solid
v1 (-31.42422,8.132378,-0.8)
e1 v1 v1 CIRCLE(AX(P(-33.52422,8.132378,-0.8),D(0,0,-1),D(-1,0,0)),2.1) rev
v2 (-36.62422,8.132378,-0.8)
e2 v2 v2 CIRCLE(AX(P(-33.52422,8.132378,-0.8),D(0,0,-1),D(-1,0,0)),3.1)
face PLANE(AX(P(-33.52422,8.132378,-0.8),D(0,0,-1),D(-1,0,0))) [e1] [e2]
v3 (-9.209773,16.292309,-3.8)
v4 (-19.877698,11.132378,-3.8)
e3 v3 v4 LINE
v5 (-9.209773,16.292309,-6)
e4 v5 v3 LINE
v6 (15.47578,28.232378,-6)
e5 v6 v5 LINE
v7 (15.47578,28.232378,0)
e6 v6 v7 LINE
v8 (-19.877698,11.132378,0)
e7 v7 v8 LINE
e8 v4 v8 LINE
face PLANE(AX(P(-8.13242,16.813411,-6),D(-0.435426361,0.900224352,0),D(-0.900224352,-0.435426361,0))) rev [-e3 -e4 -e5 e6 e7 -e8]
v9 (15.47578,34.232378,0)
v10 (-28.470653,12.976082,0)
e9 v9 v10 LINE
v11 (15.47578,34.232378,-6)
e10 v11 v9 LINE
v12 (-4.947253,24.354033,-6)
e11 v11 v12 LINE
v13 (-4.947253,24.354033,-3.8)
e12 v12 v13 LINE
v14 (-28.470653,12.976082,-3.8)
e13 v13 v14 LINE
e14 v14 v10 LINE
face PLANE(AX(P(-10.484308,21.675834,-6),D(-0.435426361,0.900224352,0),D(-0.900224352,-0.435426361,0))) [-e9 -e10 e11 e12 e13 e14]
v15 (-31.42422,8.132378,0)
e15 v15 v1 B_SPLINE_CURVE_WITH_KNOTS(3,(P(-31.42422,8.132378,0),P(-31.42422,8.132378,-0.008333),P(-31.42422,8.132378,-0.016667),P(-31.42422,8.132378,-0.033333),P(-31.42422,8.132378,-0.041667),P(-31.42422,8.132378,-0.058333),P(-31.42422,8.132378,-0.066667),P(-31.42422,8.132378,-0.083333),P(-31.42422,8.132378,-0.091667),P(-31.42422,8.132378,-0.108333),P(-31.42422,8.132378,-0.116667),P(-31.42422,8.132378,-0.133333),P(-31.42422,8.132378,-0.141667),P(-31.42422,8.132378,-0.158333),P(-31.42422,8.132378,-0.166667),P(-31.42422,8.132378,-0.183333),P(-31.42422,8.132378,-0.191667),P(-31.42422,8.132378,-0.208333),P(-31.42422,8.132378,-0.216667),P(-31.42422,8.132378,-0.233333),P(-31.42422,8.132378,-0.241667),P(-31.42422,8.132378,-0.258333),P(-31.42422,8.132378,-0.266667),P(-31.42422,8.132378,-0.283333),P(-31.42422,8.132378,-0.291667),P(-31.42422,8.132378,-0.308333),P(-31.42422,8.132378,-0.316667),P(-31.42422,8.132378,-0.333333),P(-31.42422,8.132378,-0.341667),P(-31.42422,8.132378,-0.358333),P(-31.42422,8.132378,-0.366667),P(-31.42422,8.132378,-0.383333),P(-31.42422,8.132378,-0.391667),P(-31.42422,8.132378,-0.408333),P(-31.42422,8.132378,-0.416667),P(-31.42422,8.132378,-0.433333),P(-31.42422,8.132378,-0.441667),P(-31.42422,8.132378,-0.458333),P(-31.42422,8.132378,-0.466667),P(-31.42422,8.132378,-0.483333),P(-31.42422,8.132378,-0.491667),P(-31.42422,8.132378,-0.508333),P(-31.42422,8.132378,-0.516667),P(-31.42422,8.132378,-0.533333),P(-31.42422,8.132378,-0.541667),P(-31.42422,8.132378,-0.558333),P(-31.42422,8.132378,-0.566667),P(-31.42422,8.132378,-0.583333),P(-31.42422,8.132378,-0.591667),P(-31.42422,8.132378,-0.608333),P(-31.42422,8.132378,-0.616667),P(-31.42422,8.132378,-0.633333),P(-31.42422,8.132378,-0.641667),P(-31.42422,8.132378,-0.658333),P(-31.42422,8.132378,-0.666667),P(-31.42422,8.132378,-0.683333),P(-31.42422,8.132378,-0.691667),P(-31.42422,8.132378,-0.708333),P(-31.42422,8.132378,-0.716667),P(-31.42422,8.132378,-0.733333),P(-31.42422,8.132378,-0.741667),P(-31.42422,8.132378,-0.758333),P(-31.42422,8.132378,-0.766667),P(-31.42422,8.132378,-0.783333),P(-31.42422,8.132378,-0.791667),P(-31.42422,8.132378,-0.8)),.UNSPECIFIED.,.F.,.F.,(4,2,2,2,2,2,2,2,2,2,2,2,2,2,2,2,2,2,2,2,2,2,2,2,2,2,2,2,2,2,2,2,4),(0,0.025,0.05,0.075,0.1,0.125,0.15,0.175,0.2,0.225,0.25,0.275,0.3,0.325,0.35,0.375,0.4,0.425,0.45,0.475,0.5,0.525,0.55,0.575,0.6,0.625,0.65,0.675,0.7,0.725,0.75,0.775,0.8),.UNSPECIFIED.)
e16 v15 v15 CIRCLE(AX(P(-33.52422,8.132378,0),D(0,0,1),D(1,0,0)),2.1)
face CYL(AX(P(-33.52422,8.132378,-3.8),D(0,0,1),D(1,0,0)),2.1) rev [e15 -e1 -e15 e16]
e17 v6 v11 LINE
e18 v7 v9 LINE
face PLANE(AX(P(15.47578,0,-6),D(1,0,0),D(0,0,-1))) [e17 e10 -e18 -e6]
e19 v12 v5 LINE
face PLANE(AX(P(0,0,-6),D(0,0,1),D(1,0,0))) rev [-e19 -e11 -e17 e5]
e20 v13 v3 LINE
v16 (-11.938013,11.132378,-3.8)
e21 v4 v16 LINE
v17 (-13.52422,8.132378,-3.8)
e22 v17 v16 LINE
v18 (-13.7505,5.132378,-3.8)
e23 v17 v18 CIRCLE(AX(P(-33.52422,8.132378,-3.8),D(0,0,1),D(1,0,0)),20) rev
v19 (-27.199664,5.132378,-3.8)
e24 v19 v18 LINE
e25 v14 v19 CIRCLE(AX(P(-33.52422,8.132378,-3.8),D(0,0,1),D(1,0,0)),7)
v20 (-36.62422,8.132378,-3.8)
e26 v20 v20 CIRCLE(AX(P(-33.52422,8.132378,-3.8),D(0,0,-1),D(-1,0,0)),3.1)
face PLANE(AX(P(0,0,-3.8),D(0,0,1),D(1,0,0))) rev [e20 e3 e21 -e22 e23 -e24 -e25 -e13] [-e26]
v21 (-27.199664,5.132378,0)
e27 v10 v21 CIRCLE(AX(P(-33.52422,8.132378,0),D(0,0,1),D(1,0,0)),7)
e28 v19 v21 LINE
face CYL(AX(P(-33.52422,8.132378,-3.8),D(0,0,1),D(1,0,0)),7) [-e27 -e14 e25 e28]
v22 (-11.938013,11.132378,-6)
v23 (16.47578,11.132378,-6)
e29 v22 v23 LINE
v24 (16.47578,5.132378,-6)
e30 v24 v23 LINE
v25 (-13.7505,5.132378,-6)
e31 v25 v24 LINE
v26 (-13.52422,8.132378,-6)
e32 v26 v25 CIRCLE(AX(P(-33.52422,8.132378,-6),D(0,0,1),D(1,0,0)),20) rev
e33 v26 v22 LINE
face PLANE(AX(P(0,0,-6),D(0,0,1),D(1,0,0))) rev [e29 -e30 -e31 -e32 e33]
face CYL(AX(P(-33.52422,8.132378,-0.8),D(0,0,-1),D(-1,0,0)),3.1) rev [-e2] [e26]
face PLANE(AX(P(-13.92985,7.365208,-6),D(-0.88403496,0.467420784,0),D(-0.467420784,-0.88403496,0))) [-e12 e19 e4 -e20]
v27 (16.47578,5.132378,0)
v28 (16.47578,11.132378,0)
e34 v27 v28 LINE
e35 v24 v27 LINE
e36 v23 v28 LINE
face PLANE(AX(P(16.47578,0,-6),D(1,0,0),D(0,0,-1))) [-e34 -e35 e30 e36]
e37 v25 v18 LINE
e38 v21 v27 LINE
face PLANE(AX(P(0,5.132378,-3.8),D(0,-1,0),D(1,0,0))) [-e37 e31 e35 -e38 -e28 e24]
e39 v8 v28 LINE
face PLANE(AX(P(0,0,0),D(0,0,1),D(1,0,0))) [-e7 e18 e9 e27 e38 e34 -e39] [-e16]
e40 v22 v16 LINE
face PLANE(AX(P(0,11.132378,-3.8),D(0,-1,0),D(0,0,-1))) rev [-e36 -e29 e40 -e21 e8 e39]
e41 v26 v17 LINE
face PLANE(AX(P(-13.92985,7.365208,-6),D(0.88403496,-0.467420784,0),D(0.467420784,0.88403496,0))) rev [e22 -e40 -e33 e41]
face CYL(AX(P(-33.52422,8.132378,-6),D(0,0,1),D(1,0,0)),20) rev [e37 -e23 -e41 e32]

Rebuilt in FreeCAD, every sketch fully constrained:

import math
import FreeCAD as App
import Part
import Sketcher

V = App.Vector

doc = App.newDocument("Part")
body = doc.addObject("PartDesign::Body", "Body")

# Sketch on XY plane
sketch1 = body.newObject("Sketcher::SketchObject", "Sketch")
sketch1.AttachmentSupport = (doc.getObject("XY_Plane"), [""])
sketch1.MapMode = "FlatFace"
sketch1.addGeometry([
    Part.LineSegment(V(-9.209773, 16.292309, 0), V(15.47578, 28.232378, 0)),
    Part.LineSegment(V(15.47578, 28.232378, 0), V(15.47578, 34.232378, 0)),
    Part.LineSegment(V(15.47578, 34.232378, 0), V(-4.947253, 24.354033, 0)),
    Part.LineSegment(V(-4.947253, 24.354033, 0), V(-9.209773, 16.292309, 0)),
], False)
sketch1.addConstraint([
    Sketcher.Constraint("Coincident", 0, 2, 1, 1),
    Sketcher.Constraint("Coincident", 1, 2, 2, 1),
    Sketcher.Constraint("Coincident", 2, 2, 3, 1),
    Sketcher.Constraint("Coincident", 3, 2, 0, 1),
    Sketcher.Constraint("Vertical", 1),
    Sketcher.Constraint("Parallel", 0, 2),
    Sketcher.Constraint("DistanceY", 1, 1, 1, 2, 6.0),
    Sketcher.Constraint("DistanceX", -1, 1, 0, 2, 15.47578),
    Sketcher.Constraint("DistanceY", -1, 1, 0, 2, 28.232378),
    Sketcher.Constraint("DistanceY", -1, 1, 3, 2, 16.292309),
    Sketcher.Constraint("DistanceX", 3, 2, 2, 2, 4.262521),
    Sketcher.Constraint("Distance", 0, 27.421557),
])
pad1 = body.newObject("PartDesign::Pad", "Pad")
pad1.Profile = sketch1
pad1.Length = 6
pad1.Reversed = True
body2 = doc.addObject("PartDesign::Body", "Body001")

# Sketch on XY plane
sketch2 = body2.newObject("Sketcher::SketchObject", "Sketch001")
sketch2.AttachmentSupport = (doc.getObject("XY_Plane001"), [""])
sketch2.MapMode = "FlatFace"
sketch2.addGeometry([
    Part.LineSegment(V(16.47578, 11.132378, 0), V(-11.938013, 11.132378, 0)),  # 0
    Part.LineSegment(V(-11.938013, 11.132378, 0), V(-13.52422, 8.132378, 0)),  # 1
    Part.ArcOfCircle(Part.Circle(V(-33.52422, 8.132378, 0), V(0, 0, 1), 20), math.radians(-8.626927), math.radians(0)),  # 2
    Part.LineSegment(V(-13.7505, 5.132378, 0), V(16.47578, 5.132378, 0)),  # 3
    Part.LineSegment(V(16.47578, 5.132378, 0), V(16.47578, 11.132378, 0)),  # 4
], False)
sketch2.addConstraint([
    Sketcher.Constraint("Coincident", 0, 2, 1, 1),
    Sketcher.Constraint("Coincident", 1, 2, 2, 2),
    Sketcher.Constraint("Coincident", 2, 1, 3, 1),
    Sketcher.Constraint("Coincident", 3, 2, 4, 1),
    Sketcher.Constraint("Coincident", 4, 2, 0, 1),
    Sketcher.Constraint("Horizontal", 0),
    Sketcher.Constraint("Horizontal", 3),
    Sketcher.Constraint("Vertical", 4),
    Sketcher.Constraint("Horizontal", 2, 3, 1, 2),
    Sketcher.Constraint("Radius", 2, 20.0),
    Sketcher.Constraint("DistanceY", 4, 1, 4, 2, 6.0),
    Sketcher.Constraint("DistanceY", 2, 3, 0, 2, 3.0),
    Sketcher.Constraint("DistanceX", 1, 2, 3, 2, 30.0),
    Sketcher.Constraint("DistanceX", 2, 1, -1, 1, 13.7505),
    Sketcher.Constraint("Distance", 1, 3.393531),
    Sketcher.Constraint("DistanceY", -1, 1, 2, 3, 8.132378),
])
pad2 = body2.newObject("PartDesign::Pad", "Pad001")
pad2.Profile = sketch2
pad2.Length = 6
pad2.Reversed = True
body.AllowCompound = True
doc.recompute()

boolean = body.newObject("PartDesign::Boolean", "Boolean")
boolean.Type = "Fuse"
boolean.addObjects([body2])

# Sketch on XY plane
sketch3 = body.newObject("Sketcher::SketchObject", "Sketch002")
sketch3.AttachmentSupport = (doc.getObject("XY_Plane"), [""])
sketch3.MapMode = "FlatFace"
sketch3.addGeometry([
    Part.LineSegment(V(15.47578, 28.232378, 0), V(15.47578, 34.232378, 0)),  # 0
    Part.LineSegment(V(15.47578, 34.232378, 0), V(-28.470653, 12.976082, 0)),  # 1
    Part.ArcOfCircle(Part.Circle(V(-33.52422, 8.132378, 0), V(0, 0, 1), 7), math.radians(43.785275), math.radians(334.623066)),  # 2
    Part.LineSegment(V(-27.199664, 5.132378, 0), V(16.47578, 5.132378, 0)),  # 3
    Part.LineSegment(V(16.47578, 5.132378, 0), V(16.47578, 11.132378, 0)),  # 4
    Part.LineSegment(V(16.47578, 11.132378, 0), V(-19.877698, 11.132378, 0)),  # 5
    Part.LineSegment(V(-19.877698, 11.132378, 0), V(15.47578, 28.232378, 0)),  # 6
    Part.Circle(V(-33.52422, 8.132378, 0), V(0, 0, 1), 2.1),  # 7
], False)
sketch3.addConstraint([
    Sketcher.Constraint("Coincident", 0, 2, 1, 1),
    Sketcher.Constraint("Coincident", 1, 2, 2, 1),
    Sketcher.Constraint("Coincident", 2, 2, 3, 1),
    Sketcher.Constraint("Coincident", 3, 2, 4, 1),
    Sketcher.Constraint("Coincident", 4, 2, 5, 1),
    Sketcher.Constraint("Coincident", 5, 2, 6, 1),
    Sketcher.Constraint("Coincident", 6, 2, 0, 1),
    Sketcher.Constraint("Vertical", 0),
    Sketcher.Constraint("Horizontal", 3),
    Sketcher.Constraint("Vertical", 4),
    Sketcher.Constraint("Horizontal", 5),
    Sketcher.Constraint("Coincident", 7, 3, 2, 3),
    Sketcher.Constraint("Parallel", 1, 6),
    Sketcher.Constraint("Equal", 0, 4),
    Sketcher.Constraint("Radius", 2, 7.0),
    Sketcher.Constraint("Diameter", 7, 4.2),
    Sketcher.Constraint("DistanceY", 0, 1, 0, 2, 6.0),
    Sketcher.Constraint("DistanceX", 2, 3, 0, 2, 49.0),
    Sketcher.Constraint("DistanceY", 2, 2, 2, 3, 3.0),
    Sketcher.Constraint("DistanceX", 0, 2, 3, 2, 1.0),
    Sketcher.Constraint("DistanceY", 2, 3, 0, 2, 26.1),
    Sketcher.Constraint("Distance", 1, 48.817201),
    Sketcher.Constraint("DistanceX", 2, 3, -1, 1, 33.52422),
    Sketcher.Constraint("DistanceY", -1, 1, 2, 3, 8.132378),
])
pad3 = body.newObject("PartDesign::Pad", "Pad002")
pad3.Profile = sketch3
pad3.Length = 3.8
pad3.Reversed = True

# Sketch on XY plane
sketch4 = body.newObject("Sketcher::SketchObject", "Sketch003")
sketch4.AttachmentSupport = (doc.getObject("XY_Plane"), [""])
sketch4.MapMode = "FlatFace"
sketch4.AttachmentOffset = App.Placement(V(0, 0, -3.8), App.Rotation())
sketch4.addGeometry(Part.Circle(V(-33.52422, 8.132378, 0), V(0, 0, 1), 3.1), False)
sketch4.addConstraint([
    Sketcher.Constraint("Diameter", 0, 6.2),
    Sketcher.Constraint("DistanceX", 0, 3, -1, 1, 33.52422),
    Sketcher.Constraint("DistanceY", -1, 1, 0, 3, 8.132378),
])
pocket1 = body.newObject("PartDesign::Pocket", "Pocket")
pocket1.Profile = sketch4
pocket1.Length = 3
pocket1.Reversed = True

doc.recompute()
